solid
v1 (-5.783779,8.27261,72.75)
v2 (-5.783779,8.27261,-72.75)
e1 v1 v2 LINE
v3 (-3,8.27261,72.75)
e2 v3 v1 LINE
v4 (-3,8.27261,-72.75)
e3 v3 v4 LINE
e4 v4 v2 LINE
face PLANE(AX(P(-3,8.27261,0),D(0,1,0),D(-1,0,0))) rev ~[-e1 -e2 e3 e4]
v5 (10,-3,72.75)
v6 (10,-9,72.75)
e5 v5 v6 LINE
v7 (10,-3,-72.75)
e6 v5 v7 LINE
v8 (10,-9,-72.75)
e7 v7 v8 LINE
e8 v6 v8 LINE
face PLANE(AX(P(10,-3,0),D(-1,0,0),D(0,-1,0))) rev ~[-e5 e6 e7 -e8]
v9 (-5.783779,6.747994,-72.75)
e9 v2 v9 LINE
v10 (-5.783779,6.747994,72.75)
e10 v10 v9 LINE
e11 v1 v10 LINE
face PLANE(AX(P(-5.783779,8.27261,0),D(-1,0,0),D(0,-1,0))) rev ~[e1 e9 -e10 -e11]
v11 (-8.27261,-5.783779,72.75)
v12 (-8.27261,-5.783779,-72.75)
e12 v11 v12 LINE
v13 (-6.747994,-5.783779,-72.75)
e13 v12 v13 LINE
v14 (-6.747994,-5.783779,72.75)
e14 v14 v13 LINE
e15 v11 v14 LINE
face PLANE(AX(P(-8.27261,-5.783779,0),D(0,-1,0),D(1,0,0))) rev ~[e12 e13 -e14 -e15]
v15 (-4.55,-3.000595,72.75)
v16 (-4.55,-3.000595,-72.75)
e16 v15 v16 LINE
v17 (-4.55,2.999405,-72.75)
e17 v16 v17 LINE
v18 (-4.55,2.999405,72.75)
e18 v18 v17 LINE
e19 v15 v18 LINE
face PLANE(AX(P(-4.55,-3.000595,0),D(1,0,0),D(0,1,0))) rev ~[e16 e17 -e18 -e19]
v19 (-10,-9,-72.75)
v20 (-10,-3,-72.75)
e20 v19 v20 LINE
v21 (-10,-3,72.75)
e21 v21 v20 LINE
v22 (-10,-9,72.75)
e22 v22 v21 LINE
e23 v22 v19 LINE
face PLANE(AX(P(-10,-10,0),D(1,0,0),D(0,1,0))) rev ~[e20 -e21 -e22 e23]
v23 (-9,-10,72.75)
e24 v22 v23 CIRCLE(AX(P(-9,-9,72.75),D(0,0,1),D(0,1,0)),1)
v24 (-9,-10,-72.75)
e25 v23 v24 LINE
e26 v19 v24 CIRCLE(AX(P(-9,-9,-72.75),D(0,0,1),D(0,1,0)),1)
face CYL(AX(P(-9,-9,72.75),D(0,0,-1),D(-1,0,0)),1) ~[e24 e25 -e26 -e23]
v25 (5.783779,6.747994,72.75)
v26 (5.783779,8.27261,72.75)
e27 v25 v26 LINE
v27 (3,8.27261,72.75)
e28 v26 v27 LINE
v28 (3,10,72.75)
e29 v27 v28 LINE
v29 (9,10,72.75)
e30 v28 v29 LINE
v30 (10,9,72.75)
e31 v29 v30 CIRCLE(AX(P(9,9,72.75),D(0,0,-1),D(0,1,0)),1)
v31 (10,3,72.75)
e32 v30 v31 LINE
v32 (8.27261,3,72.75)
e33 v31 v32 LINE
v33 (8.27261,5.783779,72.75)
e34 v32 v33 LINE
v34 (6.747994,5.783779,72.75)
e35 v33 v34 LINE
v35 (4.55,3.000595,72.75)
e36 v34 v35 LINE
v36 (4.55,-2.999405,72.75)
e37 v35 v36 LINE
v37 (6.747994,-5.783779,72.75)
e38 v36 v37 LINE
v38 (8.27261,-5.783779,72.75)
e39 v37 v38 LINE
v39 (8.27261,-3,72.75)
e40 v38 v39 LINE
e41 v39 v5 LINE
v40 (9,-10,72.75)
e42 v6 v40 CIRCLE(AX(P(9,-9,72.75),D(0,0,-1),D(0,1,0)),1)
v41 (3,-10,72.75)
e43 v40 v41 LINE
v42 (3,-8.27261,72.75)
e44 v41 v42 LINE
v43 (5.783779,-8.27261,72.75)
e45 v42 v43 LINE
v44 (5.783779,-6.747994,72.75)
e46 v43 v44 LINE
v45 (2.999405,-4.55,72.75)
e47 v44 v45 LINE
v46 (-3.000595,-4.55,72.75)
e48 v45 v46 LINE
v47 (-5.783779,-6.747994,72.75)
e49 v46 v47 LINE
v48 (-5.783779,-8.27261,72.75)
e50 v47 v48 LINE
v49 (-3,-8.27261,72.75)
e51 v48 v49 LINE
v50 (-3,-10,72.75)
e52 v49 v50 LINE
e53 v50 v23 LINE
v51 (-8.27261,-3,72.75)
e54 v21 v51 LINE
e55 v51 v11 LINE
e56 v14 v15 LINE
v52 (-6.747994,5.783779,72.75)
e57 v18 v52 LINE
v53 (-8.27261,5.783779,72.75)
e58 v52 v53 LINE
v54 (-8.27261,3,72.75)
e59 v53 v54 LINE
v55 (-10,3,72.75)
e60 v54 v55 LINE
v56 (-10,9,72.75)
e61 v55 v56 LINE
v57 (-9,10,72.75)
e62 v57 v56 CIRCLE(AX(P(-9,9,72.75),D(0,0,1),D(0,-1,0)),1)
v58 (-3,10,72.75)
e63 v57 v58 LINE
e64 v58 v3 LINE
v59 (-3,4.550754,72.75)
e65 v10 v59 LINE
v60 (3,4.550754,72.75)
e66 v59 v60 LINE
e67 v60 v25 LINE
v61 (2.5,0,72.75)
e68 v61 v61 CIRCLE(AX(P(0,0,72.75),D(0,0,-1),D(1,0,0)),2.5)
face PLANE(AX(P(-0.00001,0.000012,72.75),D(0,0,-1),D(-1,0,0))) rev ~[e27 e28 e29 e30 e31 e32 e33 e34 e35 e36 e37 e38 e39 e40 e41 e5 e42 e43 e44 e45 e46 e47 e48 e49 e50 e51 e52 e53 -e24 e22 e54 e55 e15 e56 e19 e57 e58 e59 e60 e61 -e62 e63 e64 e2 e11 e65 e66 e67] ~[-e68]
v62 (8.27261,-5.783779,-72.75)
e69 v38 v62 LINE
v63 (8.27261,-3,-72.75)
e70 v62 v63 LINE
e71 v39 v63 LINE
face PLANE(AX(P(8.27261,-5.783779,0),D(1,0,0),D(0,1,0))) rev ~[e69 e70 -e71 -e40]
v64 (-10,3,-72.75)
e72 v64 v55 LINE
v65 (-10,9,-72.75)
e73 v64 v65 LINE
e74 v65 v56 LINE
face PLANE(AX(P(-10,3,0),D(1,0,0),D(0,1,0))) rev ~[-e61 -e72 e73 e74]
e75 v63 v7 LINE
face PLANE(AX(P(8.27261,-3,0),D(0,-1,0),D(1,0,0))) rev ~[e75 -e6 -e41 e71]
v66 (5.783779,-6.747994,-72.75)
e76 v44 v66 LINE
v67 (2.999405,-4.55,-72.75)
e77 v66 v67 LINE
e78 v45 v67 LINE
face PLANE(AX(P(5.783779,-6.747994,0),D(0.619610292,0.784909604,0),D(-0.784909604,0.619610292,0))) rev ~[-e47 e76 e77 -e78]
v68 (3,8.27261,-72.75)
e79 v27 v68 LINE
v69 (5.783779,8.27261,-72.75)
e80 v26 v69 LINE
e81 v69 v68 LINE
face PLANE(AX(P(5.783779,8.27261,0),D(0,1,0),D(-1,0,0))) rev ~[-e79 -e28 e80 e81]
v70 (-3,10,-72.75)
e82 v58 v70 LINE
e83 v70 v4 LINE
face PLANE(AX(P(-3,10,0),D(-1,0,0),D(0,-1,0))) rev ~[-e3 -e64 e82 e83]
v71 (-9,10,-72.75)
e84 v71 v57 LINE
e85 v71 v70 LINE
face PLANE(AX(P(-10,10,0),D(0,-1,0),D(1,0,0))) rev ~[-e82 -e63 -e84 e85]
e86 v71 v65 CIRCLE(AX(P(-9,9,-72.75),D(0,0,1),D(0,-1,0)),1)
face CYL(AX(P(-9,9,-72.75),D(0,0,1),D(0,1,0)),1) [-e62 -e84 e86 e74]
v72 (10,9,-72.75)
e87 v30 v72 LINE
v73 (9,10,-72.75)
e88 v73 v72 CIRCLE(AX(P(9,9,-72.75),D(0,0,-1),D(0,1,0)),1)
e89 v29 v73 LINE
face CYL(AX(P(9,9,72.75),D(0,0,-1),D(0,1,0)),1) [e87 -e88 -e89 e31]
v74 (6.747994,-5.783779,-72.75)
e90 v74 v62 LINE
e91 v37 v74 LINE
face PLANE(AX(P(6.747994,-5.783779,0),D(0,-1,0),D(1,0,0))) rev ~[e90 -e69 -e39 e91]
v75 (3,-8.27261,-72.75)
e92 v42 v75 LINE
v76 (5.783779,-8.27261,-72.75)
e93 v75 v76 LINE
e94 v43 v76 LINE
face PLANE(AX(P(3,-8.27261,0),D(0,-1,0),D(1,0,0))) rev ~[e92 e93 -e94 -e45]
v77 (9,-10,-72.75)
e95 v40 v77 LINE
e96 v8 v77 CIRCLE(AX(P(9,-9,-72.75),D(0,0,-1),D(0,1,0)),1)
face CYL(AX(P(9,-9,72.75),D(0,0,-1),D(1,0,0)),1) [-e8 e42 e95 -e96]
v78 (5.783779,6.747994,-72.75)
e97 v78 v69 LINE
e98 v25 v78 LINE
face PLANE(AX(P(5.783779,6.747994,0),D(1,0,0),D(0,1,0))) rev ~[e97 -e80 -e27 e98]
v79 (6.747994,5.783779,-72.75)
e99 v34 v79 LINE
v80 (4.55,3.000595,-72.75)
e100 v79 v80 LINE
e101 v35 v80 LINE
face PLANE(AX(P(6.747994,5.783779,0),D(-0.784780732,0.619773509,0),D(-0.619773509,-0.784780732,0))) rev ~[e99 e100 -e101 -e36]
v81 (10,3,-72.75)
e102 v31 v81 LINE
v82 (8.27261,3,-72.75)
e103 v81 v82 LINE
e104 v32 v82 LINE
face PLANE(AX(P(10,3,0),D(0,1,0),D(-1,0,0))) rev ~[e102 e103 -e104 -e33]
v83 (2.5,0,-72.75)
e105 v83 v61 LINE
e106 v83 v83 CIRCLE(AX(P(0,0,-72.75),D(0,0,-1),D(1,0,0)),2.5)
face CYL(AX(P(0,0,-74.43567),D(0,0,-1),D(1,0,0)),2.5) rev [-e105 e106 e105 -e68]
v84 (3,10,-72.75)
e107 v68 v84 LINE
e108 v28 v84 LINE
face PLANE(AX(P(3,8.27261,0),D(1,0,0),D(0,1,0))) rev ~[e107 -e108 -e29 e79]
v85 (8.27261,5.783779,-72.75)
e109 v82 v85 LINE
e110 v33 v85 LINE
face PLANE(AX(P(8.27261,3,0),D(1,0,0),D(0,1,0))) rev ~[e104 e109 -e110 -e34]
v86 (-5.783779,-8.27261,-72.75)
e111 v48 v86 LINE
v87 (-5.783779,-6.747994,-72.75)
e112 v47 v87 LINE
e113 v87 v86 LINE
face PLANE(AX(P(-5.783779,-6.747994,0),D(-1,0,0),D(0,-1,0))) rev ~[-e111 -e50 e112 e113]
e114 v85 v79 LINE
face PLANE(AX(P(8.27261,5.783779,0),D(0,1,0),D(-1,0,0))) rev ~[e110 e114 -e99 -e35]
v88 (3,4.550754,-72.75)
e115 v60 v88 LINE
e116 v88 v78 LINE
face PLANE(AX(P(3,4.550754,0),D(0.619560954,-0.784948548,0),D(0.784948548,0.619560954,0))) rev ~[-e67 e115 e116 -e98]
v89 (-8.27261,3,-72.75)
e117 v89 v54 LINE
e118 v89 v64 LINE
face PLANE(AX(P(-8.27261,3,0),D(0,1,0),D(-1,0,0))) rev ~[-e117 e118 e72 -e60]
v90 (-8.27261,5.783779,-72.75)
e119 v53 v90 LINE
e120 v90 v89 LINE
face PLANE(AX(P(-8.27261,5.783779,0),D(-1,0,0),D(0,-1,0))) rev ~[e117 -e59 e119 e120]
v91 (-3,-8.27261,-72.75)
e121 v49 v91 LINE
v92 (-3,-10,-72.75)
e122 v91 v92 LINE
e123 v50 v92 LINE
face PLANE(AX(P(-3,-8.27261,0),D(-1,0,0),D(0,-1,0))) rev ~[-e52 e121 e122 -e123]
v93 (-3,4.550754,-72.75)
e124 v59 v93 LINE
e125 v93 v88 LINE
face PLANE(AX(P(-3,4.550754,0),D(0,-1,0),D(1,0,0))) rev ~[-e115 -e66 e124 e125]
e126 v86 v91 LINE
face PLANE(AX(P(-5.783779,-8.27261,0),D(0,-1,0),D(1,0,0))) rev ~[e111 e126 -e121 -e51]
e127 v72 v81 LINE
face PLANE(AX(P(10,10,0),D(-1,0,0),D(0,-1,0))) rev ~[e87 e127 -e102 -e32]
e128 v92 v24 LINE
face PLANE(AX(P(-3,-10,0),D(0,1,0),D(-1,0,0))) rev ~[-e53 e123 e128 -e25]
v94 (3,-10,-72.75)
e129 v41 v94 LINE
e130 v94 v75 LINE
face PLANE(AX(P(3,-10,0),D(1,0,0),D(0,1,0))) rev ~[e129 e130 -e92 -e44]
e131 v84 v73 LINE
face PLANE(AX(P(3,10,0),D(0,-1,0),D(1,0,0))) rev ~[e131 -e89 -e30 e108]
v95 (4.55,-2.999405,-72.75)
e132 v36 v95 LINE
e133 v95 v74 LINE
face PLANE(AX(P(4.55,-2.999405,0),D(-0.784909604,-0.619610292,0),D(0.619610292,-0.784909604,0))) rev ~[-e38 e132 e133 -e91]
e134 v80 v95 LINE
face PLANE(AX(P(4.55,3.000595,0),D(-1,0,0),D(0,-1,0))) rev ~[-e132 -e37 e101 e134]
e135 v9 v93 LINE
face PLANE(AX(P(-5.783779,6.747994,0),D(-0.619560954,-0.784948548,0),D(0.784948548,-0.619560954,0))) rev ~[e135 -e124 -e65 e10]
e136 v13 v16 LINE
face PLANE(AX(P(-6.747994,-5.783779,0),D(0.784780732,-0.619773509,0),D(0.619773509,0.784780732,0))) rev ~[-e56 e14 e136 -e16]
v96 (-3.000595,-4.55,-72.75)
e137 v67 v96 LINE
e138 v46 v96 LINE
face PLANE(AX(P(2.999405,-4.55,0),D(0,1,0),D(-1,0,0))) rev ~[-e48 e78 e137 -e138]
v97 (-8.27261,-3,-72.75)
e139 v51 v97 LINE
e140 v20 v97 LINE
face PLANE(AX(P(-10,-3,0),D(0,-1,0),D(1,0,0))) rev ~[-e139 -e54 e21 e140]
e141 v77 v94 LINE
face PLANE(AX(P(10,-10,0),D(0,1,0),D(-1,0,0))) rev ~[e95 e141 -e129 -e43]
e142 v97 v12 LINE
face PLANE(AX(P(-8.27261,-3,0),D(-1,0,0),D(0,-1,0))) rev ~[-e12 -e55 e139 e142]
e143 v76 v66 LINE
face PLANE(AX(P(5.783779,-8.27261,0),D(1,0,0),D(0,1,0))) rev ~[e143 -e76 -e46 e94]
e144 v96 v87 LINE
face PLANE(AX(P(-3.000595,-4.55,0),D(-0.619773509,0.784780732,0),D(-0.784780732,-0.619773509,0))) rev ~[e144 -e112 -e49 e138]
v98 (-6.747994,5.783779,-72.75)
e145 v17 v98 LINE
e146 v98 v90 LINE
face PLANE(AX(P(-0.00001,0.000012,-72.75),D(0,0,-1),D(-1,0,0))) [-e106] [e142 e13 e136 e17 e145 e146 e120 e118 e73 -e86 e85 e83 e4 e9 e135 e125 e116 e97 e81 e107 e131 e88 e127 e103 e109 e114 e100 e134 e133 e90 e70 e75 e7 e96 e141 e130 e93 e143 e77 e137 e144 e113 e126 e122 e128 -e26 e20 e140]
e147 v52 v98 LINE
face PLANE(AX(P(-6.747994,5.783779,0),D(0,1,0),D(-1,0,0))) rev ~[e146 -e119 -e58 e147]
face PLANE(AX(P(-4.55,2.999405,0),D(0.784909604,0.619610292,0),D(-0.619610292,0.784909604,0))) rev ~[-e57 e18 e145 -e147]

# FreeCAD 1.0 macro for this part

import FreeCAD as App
import Part
import Sketcher
Q = App.Units.Quantity


def edges_at(feature, points):
    """Names of the edges that pass closest to the given points."""
    edges = feature.Shape.Edges
    near = lambda p: min(range(len(edges)), key=lambda i: edges[i].distToShape(Part.Vertex(*p))[0])
    return sorted({f"Edge{near(p) + 1}" for p in points})


def add_polygon(sketch, points):
    """Adds a closed chain of lines whose ends are joined by coincident constraints."""
    first, n = sketch.GeometryCount, len(points)
    for a, b in zip(points, points[1:] + points[:1]):
        sketch.addGeometry(Part.LineSegment(App.Vector(*a, 0), App.Vector(*b, 0)), False)
    for i in range(n):
        sketch.addConstraint(Sketcher.Constraint("Coincident", first + i, 2, first + (i + 1) % n, 1))

doc = App.newDocument("Part")
body = doc.addObject("PartDesign::Body", "Body")

# Sketch on XY plane
sketch1 = body.newObject("Sketcher::SketchObject", "Sketch")
sketch1.AttachmentSupport = (doc.getObject("XY_Plane"), [""])
sketch1.MapMode = "FlatFace"
add_polygon(sketch1, [(-3, 10), (-10, 10), (-10, 3), (-8.27261, 3), (-8.27261, 5.783779), (-6.747994, 5.783779), (-4.55, 2.999405), (-4.55, -3.000595), (-6.747994, -5.783779), (-8.27261, -5.783779), (-8.27261, -3), (-10, -3), (-10, -10), (-3, -10), (-3, -8.27261), (-5.783779, -8.27261), (-5.783779, -6.747994), (-3.000595, -4.55), (2.999405, -4.55), (5.783779, -6.747994), (5.783779, -8.27261), (3, -8.27261), (3, -10), (10, -10), (10, -3), (8.27261, -3), (8.27261, -5.783779), (6.747994, -5.783779), (4.55, -2.999405), (4.55, 3.000595), (6.747994, 5.783779), (8.27261, 5.783779), (8.27261, 3), (10, 3), (10, 10), (3, 10), (3, 8.27261), (5.783779, 8.27261), (5.783779, 6.747994), (3, 4.550754), (-3, 4.550754), (-5.783779, 6.747994), (-5.783779, 8.27261), (-3, 8.27261)])  # lines 0-43
sketch1.addConstraint(Sketcher.Constraint("Horizontal", 0))
sketch1.addConstraint(Sketcher.Constraint("Vertical", 1))
sketch1.addConstraint(Sketcher.Constraint("Horizontal", 2))
sketch1.addConstraint(Sketcher.Constraint("Vertical", 3))
sketch1.addConstraint(Sketcher.Constraint("Horizontal", 4))
sketch1.addConstraint(Sketcher.Constraint("Vertical", 6))
sketch1.addConstraint(Sketcher.Constraint("Horizontal", 8))
sketch1.addConstraint(Sketcher.Constraint("Vertical", 9))
sketch1.addConstraint(Sketcher.Constraint("Horizontal", 10))
sketch1.addConstraint(Sketcher.Constraint("Vertical", 11))
sketch1.addConstraint(Sketcher.Constraint("Horizontal", 12))
sketch1.addConstraint(Sketcher.Constraint("Vertical", 13))
sketch1.addConstraint(Sketcher.Constraint("Horizontal", 14))
sketch1.addConstraint(Sketcher.Constraint("Vertical", 15))
sketch1.addConstraint(Sketcher.Constraint("Horizontal", 17))
sketch1.addConstraint(Sketcher.Constraint("Vertical", 19))
sketch1.addConstraint(Sketcher.Constraint("Horizontal", 20))
sketch1.addConstraint(Sketcher.Constraint("Vertical", 21))
sketch1.addConstraint(Sketcher.Constraint("Horizontal", 22))
sketch1.addConstraint(Sketcher.Constraint("Vertical", 23))
sketch1.addConstraint(Sketcher.Constraint("Horizontal", 24))
sketch1.addConstraint(Sketcher.Constraint("Vertical", 25))
sketch1.addConstraint(Sketcher.Constraint("Horizontal", 26))
sketch1.addConstraint(Sketcher.Constraint("Vertical", 28))
sketch1.addConstraint(Sketcher.Constraint("Horizontal", 30))
sketch1.addConstraint(Sketcher.Constraint("Vertical", 31))
sketch1.addConstraint(Sketcher.Constraint("Horizontal", 32))
sketch1.addConstraint(Sketcher.Constraint("Vertical", 33))
sketch1.addConstraint(Sketcher.Constraint("Horizontal", 34))
sketch1.addConstraint(Sketcher.Constraint("Vertical", 35))
sketch1.addConstraint(Sketcher.Constraint("Horizontal", 36))
sketch1.addConstraint(Sketcher.Constraint("Vertical", 37))
sketch1.addConstraint(Sketcher.Constraint("Horizontal", 39))
sketch1.addConstraint(Sketcher.Constraint("Vertical", 41))
sketch1.addConstraint(Sketcher.Constraint("Horizontal", 42))
sketch1.addConstraint(Sketcher.Constraint("Vertical", 43))
sketch1.addConstraint(Sketcher.Constraint("Symmetric", 0, 2, 22, 2, -1, 1))
sketch1.addConstraint(Sketcher.Constraint("Symmetric", 2, 2, 24, 2, -1, 1))
sketch1.addConstraint(Sketcher.Constraint("Symmetric", 4, 2, 26, 2, -1, 1))
sketch1.addConstraint(Sketcher.Constraint("Symmetric", 5, 2, 27, 2, -1, 1))
sketch1.addConstraint(Sketcher.Constraint("Symmetric", 7, 2, 29, 2, -1, 1))
sketch1.addConstraint(Sketcher.Constraint("Symmetric", 9, 2, 31, 2, -1, 1))
sketch1.addConstraint(Sketcher.Constraint("Symmetric", 11, 2, 33, 2, -1, 1))
sketch1.addConstraint(Sketcher.Constraint("Symmetric", 13, 2, 35, 2, -1, 1))
sketch1.addConstraint(Sketcher.Constraint("Symmetric", 15, 2, 37, 2, -1, 1))
sketch1.addConstraint(Sketcher.Constraint("Symmetric", 18, 2, 40, 2, -1, 1))
sketch1.addConstraint(Sketcher.Constraint("Symmetric", 20, 2, 42, 2, -1, 1))
sketch1.addConstraint(Sketcher.Constraint("Symmetric", 15, 2, 18, 2, -2))
sketch1.addConstraint(Sketcher.Constraint("Symmetric", 13, 2, 20, 2, -2))
sketch1.addConstraint(Sketcher.Constraint("Symmetric", 11, 2, 22, 2, -2))
sketch1.addConstraint(Sketcher.Constraint("Symmetric", 9, 2, 24, 2, -2))
sketch1.addConstraint(Sketcher.Constraint("Symmetric", 7, 2, 26, 2, -2))
sketch1.addConstraint(Sketcher.Constraint("Parallel", 7, 29))
sketch1.addConstraint(Sketcher.Constraint("Vertical", 35, 2, 38, 2))
sketch1.addConstraint(Sketcher.Constraint("Vertical", 13, 2, 39, 2))
sketch1.addConstraint(Sketcher.Constraint("Equal", 17, 39))
sketch1.addConstraint(Sketcher.Constraint("Equal", 34, 1))
sketch1.addConstraint(Sketcher.Constraint("Equal", 42, 3))
sketch1.addConstraint(Sketcher.Constraint("Equal", 39, 6))
sketch1.addConstraint(Sketcher.Constraint("Equal", 32, 13))
sketch1.addConstraint(Sketcher.Constraint("Equal", 30, 15))
sketch1.addConstraint(Sketcher.Constraint("Equal", 7, 16))
sketch1.addConstraint(Sketcher.Constraint("Equal", 5, 18))
sketch1.addConstraint(Sketcher.Constraint("Equal", 29, 38))
sketch1.addConstraint(Sketcher.Constraint("DistanceX", 0, 2, 0, 1, Q("7 mm")))
sketch1.addConstraint(Sketcher.Constraint("DistanceX", 17, 1, 17, 2, Q("6 mm")))
sketch1.addConstraint(Sketcher.Constraint("DistanceY", -1, 1, 0, 2, Q("10 mm")))
sketch1.addConstraint(Sketcher.Constraint("DistanceX", 5, 2, -1, 1, Q("4.55 mm")))
sketch1.addConstraint(Sketcher.Constraint("DistanceX", 2, 1, 2, 2, Q("1.72739 mm")))
sketch1.addConstraint(Sketcher.Constraint("DistanceX", 14, 2, 14, 1, Q("2.783779 mm")))
sketch1.addConstraint(Sketcher.Constraint("DistanceY", 15, 2, 6, 2, Q("3.747399 mm")))
sketch1.addConstraint(Sketcher.Constraint("Distance", 5, Q("3.547382 mm")))
pad1 = body.newObject("PartDesign::Pad", "Pad")
pad1.Profile = sketch1
pad1.Length = 145.5
pad1.Midplane = True

# Sketch on XY plane
sketch2 = body.newObject("Sketcher::SketchObject", "Sketch001")
sketch2.AttachmentSupport = (doc.getObject("XY_Plane"), [""])
sketch2.MapMode = "FlatFace"
sketch2.AttachmentOffset = App.Placement(App.Vector(0, 0, 72.75), App.Rotation())
sketch2.addGeometry(Part.Circle(App.Vector(0, 0, 0), App.Vector(0, 0, 1), 2.5), False)
sketch2.addConstraint(Sketcher.Constraint("Coincident", 0, 3, -1, 1))
sketch2.addConstraint(Sketcher.Constraint("Diameter", 0, Q("5 mm")))
pocket1 = body.newObject("PartDesign::Pocket", "Pocket")
pocket1.Profile = sketch2
pocket1.Type = "ThroughAll"
pocket1.Midplane = True
doc.recompute()

fillet = body.newObject("PartDesign::Fillet", "Fillet")
fillet.Base = (pocket1, edges_at(pocket1, [
    (-10, 10, 0),
    (10, 10, 0),
    (10, -10, 0),
    (-10, -10, 0),
]))
fillet.Radius = 1

doc.recompute()
